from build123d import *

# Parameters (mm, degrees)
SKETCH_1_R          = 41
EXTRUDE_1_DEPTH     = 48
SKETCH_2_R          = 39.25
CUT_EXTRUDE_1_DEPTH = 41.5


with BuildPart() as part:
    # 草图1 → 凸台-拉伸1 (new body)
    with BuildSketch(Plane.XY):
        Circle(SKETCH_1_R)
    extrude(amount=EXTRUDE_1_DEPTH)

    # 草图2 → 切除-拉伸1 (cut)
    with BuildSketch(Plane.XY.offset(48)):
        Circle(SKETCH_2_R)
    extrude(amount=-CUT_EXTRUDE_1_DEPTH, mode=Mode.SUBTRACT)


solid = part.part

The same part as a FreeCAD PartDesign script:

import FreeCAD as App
import Part
import Sketcher
Q = App.Units.Quantity

doc = App.newDocument("Part")
body = doc.addObject("PartDesign::Body", "Body")

sketch1 = body.newObject("Sketcher::SketchObject", "Sketch")
sketch1.AttachmentSupport = (doc.getObject("XY_Plane"), [""])
sketch1.MapMode = "FlatFace"
sketch1.addGeometry(Part.Circle(App.Vector(0, 0, 0), App.Vector(0, 0, 1), 41), False)
sketch1.addConstraint([
    Sketcher.Constraint("Coincident", 0, 3, -1, 1),
    Sketcher.Constraint("Diameter", 0, Q("82 mm")),
])
pad1 = body.newObject("PartDesign::Pad", "Pad")
pad1.Profile = sketch1
pad1.Length = 48

sketch2 = body.newObject("Sketcher::SketchObject", "Sketch001")
sketch2.AttachmentSupport = (doc.getObject("XY_Plane"), [""])
sketch2.MapMode = "FlatFace"
sketch2.AttachmentOffset = App.Placement(App.Vector(0, 0, 48), App.Rotation())
sketch2.addGeometry(Part.Circle(App.Vector(0, 0, 0), App.Vector(0, 0, 1), 39), False)
sketch2.addConstraint([
    Sketcher.Constraint("Coincident", 0, 3, -1, 1),
    Sketcher.Constraint("Diameter", 0, Q("78.5 mm")),
])
pocket1 = body.newObject("PartDesign::Pocket", "Pocket")
pocket1.Profile = sketch2
pocket1.Length = 41.5

doc.recompute()
